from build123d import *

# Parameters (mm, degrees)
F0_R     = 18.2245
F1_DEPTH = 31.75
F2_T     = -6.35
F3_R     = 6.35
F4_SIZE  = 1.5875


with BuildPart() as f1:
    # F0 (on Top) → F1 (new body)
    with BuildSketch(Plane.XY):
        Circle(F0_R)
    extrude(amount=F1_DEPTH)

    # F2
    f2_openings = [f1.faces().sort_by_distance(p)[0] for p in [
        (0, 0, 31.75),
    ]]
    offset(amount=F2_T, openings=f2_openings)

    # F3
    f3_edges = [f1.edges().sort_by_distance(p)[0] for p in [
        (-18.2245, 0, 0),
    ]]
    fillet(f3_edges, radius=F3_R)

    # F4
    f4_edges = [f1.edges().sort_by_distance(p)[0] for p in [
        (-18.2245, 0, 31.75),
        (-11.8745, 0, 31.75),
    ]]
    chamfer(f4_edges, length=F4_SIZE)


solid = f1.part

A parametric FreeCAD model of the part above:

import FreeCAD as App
import Part
import Sketcher
Q = App.Units.Quantity


def edges_at(feature, points):
    """Names of the edges that pass closest to the given points."""
    edges = feature.Shape.Edges
    near = lambda p: min(range(len(edges)), key=lambda i: edges[i].distToShape(Part.Vertex(*p))[0])
    return sorted({f"Edge{near(p) + 1}" for p in points})


def faces_at(feature, points):
    """Names of the faces that lie closest to the given points."""
    faces = feature.Shape.Faces
    near = lambda p: min(range(len(faces)), key=lambda i: faces[i].distToShape(Part.Vertex(*p))[0])
    return sorted({f"Face{near(p) + 1}" for p in points})

doc = App.newDocument("Part")
body = doc.addObject("PartDesign::Body", "Body")

# Sketch on XY plane
sketch1 = doc.addObject("Sketcher::SketchObject", "Sketch")
body.addObject(sketch1)
sketch1.AttachmentSupport = (doc.XY_Plane, [""])
sketch1.MapMode = "FlatFace"
sketch1.addGeometry(Part.Circle(App.Vector(0, 0, 0), App.Vector(0, 0, 1), 18.2245), False)
sketch1.addConstraint(Sketcher.Constraint("Coincident", 0, 3, -1, 1))
sketch1.addConstraint(Sketcher.Constraint("Diameter", 0, Q("1.435 in")))
pad1 = doc.addObject("PartDesign::Pad", "Pad")
body.addObject(pad1)
pad1.Profile = sketch1
pad1.Length = Q("1.25 in")
doc.recompute()

thickness = doc.addObject("PartDesign::Thickness", "Thickness")
body.addObject(thickness)
thickness.Base = (pad1, faces_at(pad1, [(0, 0, 31.75)]))
thickness.Value = Q("0.25 in")
thickness.Reversed = True
thickness.Join = "Arc"
doc.recompute()

fillet = doc.addObject("PartDesign::Fillet", "Fillet")
body.addObject(fillet)
fillet.Base = (thickness, edges_at(thickness, [(-18.224, 0, 0)]))
fillet.Radius = Q("0.25 in")
doc.recompute()

chamfer = doc.addObject("PartDesign::Chamfer", "Chamfer")
body.addObject(chamfer)
chamfer.Base = (fillet, edges_at(fillet, [(-18.224, 0, 31.75), (-11.874, 0, 31.75)]))
chamfer.Size = Q("0.0625 in")

doc.recompute()
